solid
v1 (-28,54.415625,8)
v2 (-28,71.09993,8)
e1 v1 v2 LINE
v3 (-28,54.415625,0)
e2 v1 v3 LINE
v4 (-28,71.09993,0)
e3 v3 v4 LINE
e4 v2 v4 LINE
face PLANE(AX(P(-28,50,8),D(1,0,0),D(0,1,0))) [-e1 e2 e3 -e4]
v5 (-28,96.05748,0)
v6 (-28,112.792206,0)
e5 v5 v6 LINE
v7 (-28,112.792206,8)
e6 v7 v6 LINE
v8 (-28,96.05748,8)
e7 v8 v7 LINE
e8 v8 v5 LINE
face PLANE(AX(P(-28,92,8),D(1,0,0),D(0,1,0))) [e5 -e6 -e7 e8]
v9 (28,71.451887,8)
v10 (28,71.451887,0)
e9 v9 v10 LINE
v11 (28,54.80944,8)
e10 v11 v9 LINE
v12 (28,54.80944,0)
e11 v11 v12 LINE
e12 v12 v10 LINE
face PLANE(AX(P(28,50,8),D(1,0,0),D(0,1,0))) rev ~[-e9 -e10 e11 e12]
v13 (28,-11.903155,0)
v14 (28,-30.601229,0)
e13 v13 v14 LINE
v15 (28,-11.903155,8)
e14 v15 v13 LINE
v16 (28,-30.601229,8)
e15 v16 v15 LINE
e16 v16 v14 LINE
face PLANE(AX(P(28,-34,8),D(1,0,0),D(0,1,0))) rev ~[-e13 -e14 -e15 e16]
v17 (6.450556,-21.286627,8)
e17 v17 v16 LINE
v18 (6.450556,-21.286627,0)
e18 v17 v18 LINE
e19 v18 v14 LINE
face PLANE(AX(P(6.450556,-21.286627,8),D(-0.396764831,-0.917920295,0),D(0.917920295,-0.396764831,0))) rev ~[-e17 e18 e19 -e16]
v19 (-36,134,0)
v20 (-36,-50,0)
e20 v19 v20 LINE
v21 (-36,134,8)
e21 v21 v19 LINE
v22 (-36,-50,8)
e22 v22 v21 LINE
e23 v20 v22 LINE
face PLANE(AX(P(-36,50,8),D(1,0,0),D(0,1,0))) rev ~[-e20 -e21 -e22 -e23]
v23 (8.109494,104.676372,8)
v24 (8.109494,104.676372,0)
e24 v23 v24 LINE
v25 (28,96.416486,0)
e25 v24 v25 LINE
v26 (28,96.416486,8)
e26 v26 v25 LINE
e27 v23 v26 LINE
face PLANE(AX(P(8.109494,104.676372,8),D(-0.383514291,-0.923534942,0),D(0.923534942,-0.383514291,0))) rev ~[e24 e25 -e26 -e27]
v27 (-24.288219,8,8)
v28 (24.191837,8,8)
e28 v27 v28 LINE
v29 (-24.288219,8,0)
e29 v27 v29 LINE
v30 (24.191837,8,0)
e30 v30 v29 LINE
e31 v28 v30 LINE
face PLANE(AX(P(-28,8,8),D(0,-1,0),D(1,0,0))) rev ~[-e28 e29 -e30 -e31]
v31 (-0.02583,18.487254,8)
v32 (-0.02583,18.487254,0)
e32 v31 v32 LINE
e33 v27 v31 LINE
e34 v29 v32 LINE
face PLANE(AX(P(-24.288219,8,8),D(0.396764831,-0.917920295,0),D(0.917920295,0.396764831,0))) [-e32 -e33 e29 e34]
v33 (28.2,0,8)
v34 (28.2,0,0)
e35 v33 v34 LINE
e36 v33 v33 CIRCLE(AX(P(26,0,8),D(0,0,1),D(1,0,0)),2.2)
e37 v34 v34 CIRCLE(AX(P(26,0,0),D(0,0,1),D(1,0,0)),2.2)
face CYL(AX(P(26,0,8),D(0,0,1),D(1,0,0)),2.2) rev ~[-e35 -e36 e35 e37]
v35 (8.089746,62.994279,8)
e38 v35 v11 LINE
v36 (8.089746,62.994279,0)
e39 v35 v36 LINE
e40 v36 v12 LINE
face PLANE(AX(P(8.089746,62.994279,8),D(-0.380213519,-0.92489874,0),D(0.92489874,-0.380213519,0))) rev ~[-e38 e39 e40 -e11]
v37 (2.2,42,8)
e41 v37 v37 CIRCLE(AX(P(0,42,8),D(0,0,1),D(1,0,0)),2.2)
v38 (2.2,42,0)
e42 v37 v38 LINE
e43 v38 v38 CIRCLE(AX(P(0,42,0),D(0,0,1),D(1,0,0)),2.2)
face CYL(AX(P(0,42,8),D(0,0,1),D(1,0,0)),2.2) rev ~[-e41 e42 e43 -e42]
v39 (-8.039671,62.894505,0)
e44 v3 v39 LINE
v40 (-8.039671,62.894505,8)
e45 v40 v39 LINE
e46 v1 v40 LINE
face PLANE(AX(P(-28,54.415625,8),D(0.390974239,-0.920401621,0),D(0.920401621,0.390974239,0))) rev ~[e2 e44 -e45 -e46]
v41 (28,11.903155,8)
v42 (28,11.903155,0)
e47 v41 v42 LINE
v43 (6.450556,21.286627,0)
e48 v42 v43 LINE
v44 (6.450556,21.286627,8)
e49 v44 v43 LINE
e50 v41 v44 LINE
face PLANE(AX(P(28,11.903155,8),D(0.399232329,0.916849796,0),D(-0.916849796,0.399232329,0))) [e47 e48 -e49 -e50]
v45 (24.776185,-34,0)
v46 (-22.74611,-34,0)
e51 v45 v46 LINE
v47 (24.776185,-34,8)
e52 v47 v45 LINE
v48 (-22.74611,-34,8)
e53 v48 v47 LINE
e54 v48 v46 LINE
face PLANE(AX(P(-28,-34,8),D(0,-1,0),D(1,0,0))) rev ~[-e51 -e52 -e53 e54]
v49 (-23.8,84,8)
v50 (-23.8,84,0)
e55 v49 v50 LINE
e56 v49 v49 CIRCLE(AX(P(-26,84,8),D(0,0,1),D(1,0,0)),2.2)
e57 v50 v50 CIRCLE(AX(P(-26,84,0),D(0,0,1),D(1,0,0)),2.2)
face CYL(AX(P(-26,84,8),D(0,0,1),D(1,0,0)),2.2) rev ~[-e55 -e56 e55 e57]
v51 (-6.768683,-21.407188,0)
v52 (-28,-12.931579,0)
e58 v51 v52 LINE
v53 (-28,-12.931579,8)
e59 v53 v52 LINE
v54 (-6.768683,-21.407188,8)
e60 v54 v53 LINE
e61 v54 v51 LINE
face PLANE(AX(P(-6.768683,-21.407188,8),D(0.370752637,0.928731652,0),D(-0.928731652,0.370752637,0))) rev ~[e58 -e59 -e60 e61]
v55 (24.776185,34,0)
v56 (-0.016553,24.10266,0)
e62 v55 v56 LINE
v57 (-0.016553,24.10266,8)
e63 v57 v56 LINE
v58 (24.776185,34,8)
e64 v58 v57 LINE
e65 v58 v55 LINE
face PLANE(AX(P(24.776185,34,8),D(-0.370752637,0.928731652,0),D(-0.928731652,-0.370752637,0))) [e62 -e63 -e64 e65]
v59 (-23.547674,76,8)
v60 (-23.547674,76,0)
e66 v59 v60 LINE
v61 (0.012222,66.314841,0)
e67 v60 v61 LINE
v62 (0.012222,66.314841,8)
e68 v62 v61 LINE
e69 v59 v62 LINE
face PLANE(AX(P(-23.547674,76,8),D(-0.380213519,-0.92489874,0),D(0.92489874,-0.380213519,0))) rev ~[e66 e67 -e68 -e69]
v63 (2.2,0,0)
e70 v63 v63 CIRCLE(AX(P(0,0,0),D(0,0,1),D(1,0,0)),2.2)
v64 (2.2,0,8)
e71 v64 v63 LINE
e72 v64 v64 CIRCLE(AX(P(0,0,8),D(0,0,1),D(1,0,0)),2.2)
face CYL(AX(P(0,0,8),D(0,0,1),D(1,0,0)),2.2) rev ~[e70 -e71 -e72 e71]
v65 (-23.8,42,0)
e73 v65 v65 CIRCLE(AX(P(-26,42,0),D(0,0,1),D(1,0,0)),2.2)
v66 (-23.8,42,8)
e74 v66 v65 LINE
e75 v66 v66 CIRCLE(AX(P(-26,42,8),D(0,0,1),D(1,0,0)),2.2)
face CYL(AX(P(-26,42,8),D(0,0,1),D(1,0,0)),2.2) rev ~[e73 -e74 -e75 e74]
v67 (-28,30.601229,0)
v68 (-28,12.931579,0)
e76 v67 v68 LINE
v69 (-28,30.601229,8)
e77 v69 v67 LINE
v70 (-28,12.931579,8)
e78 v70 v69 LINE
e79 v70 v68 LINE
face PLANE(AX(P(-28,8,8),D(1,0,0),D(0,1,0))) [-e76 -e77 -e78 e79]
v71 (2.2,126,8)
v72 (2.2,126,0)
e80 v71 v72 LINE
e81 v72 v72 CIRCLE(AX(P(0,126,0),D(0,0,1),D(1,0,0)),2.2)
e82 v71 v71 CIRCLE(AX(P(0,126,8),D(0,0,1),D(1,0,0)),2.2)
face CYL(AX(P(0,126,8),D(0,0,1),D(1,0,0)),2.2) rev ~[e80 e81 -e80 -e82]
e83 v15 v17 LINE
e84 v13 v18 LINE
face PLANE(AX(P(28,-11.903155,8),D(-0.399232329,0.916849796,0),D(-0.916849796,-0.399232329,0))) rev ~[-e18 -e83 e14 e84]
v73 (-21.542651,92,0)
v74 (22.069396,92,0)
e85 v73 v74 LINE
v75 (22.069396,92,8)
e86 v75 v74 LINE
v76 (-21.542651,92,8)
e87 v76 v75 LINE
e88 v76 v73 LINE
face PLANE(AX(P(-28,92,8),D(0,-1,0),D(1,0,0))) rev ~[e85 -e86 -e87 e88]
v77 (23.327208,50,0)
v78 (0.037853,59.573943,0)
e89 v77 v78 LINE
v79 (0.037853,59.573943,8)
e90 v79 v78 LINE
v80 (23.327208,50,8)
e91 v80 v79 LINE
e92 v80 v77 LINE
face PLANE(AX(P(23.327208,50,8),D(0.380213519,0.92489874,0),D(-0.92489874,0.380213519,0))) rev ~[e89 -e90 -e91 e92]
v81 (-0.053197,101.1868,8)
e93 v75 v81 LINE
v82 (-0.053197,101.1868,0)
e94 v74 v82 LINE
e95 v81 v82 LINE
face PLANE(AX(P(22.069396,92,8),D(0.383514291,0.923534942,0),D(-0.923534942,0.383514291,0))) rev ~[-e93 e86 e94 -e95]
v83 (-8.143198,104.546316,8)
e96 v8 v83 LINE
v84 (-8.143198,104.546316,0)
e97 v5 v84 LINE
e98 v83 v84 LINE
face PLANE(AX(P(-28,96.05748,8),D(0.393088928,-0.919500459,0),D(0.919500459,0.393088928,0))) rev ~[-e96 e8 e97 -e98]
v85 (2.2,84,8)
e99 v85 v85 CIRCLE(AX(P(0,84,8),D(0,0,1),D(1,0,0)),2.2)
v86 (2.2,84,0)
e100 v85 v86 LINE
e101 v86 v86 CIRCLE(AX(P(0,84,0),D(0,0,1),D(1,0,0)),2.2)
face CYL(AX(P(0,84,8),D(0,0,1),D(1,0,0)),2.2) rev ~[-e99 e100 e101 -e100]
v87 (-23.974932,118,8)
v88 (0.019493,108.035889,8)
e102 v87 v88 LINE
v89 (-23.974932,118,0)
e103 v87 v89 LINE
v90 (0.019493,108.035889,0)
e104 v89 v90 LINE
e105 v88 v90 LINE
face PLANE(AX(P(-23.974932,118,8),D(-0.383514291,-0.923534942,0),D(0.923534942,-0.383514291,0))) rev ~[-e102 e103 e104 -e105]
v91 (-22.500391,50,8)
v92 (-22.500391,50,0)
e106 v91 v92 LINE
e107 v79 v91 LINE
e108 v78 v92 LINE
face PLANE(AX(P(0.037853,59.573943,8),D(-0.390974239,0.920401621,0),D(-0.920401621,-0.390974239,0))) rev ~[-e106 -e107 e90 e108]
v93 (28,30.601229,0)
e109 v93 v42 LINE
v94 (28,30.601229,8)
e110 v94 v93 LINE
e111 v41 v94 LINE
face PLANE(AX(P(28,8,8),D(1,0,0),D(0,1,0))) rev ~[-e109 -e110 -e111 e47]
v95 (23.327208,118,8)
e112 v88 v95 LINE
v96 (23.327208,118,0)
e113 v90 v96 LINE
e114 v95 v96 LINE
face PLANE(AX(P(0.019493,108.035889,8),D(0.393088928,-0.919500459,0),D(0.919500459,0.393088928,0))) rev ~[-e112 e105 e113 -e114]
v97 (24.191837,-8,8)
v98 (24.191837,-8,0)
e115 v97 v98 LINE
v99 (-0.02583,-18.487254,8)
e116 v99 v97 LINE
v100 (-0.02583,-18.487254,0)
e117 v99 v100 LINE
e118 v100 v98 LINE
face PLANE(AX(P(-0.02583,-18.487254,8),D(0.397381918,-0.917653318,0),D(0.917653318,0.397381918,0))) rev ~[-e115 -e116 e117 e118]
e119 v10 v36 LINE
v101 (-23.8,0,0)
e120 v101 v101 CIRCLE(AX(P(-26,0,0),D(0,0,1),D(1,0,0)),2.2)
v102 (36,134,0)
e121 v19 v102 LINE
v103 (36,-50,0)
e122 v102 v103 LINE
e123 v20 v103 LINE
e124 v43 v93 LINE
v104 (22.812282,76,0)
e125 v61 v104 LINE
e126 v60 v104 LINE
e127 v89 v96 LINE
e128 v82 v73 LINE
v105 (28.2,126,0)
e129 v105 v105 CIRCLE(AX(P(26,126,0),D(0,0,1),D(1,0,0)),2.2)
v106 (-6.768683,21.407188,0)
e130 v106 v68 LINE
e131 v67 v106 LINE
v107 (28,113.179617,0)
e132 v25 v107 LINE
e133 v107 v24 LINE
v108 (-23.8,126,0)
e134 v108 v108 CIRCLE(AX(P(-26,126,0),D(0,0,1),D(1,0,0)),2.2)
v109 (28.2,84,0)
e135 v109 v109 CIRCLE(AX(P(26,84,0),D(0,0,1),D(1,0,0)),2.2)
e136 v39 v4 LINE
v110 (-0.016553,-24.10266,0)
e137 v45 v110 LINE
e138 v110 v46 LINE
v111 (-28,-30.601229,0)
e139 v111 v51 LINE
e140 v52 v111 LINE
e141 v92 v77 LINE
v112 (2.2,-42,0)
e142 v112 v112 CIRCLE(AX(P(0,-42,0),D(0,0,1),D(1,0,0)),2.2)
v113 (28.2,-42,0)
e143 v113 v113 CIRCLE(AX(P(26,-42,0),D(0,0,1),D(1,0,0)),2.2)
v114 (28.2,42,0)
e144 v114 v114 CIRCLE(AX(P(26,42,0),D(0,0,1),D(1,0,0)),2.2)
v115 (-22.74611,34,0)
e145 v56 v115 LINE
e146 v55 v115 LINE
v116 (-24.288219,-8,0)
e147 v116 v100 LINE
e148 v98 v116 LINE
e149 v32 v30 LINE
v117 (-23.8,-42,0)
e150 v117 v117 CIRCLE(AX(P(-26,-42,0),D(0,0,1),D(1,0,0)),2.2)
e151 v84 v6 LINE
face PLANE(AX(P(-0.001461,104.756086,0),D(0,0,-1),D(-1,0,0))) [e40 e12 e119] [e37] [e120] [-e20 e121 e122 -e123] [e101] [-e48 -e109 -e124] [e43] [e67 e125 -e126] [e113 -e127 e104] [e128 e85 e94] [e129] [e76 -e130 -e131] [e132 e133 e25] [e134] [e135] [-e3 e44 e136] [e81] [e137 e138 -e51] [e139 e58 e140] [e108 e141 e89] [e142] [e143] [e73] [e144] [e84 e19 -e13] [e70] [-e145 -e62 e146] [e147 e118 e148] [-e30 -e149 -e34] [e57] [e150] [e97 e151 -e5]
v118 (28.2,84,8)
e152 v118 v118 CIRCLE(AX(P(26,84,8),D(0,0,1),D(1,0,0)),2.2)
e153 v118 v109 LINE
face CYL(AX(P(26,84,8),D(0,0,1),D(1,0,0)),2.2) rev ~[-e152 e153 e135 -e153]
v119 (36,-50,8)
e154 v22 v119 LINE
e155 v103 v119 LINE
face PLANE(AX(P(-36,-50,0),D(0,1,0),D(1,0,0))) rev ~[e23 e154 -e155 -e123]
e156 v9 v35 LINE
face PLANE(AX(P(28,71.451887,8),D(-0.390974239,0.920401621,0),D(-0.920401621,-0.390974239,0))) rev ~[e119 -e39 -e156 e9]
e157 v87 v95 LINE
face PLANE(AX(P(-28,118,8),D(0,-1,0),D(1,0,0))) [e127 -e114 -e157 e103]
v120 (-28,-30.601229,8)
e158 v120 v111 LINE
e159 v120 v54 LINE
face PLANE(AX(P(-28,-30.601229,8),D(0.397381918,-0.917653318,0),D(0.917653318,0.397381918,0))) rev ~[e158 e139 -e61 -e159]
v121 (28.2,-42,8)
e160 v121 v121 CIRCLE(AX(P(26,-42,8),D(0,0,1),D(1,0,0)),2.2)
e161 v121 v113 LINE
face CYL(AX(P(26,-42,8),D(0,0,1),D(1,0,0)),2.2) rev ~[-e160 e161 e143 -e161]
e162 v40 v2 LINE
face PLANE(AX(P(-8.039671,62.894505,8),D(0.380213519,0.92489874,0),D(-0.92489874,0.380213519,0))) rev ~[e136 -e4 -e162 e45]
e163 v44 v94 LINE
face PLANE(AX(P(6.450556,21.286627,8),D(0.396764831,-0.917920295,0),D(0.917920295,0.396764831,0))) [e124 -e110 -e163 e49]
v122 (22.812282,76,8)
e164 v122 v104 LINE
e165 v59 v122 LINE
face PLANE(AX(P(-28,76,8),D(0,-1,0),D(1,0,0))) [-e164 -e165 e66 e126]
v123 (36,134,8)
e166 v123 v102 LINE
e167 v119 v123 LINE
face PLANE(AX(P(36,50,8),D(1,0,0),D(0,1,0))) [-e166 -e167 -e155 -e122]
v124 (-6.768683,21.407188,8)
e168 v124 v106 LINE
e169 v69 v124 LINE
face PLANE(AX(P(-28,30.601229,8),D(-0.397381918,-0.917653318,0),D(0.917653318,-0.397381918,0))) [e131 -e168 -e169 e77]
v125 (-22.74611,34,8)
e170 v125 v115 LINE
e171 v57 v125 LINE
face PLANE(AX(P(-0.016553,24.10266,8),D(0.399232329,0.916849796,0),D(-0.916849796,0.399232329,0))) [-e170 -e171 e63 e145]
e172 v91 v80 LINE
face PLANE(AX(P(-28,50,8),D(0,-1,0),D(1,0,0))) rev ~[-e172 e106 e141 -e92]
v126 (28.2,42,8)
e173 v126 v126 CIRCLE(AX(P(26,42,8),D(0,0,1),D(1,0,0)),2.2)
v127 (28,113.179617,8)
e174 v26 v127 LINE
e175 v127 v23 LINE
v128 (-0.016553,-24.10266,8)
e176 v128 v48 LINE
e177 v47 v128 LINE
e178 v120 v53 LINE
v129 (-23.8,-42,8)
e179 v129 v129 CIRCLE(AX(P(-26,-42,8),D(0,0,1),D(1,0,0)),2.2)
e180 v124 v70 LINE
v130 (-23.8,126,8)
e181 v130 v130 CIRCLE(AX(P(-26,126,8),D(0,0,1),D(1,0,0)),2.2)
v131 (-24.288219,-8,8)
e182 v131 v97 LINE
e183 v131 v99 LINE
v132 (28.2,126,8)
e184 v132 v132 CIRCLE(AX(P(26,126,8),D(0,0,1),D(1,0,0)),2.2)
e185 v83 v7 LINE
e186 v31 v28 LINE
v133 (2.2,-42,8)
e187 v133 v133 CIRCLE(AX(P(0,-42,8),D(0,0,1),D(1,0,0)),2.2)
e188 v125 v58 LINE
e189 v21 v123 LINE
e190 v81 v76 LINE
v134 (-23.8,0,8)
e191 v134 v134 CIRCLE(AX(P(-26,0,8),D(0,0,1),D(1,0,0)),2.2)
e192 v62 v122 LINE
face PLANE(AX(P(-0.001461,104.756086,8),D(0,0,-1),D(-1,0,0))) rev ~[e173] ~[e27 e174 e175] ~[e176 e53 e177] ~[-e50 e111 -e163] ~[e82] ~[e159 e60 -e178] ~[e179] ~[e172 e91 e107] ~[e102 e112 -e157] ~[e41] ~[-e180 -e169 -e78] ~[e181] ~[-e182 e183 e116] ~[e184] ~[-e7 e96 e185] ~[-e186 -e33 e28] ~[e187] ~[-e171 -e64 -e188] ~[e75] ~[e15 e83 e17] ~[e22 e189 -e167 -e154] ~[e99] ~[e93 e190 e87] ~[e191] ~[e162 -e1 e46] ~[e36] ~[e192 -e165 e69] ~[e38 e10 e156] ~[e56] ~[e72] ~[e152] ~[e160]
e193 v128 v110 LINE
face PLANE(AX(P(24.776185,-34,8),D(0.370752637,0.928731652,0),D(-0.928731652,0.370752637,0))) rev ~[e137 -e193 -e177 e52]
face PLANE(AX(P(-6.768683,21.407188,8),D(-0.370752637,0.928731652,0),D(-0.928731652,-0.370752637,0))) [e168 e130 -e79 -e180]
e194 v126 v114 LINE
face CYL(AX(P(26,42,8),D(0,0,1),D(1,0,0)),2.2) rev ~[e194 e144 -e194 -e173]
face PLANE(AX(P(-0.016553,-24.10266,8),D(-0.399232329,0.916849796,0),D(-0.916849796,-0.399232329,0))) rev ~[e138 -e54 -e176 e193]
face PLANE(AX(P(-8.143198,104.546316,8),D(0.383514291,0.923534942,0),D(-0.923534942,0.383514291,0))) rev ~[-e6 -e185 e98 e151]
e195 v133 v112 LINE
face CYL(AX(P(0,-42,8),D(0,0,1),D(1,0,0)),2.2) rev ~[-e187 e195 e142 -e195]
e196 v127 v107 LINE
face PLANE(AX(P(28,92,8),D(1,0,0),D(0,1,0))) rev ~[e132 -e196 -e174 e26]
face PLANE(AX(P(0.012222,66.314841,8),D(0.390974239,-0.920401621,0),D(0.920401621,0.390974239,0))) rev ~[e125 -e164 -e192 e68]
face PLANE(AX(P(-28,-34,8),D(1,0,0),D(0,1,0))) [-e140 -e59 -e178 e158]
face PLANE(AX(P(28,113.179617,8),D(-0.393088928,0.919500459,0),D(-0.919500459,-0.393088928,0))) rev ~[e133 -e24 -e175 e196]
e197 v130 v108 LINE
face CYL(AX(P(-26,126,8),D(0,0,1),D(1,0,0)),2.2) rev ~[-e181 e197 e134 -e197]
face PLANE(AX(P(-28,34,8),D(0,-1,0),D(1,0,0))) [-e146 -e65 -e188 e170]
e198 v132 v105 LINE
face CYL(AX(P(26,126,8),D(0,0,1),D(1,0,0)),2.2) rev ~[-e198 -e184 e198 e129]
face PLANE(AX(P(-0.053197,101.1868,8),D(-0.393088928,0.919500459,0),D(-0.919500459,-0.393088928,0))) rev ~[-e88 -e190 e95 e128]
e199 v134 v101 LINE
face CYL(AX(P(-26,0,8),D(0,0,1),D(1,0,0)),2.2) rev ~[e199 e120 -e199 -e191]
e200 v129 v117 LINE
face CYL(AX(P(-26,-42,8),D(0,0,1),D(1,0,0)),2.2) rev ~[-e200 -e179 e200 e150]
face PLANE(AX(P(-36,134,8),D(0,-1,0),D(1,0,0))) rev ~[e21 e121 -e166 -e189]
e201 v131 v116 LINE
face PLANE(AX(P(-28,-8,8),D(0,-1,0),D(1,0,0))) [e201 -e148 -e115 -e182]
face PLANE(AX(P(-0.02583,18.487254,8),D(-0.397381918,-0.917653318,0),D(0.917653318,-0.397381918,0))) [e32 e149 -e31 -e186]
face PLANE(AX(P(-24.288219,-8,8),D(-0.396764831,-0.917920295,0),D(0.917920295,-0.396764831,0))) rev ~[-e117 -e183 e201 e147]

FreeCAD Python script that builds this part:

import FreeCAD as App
import Part
import Sketcher
from FreeCAD import Vector
Q = App.Units.Quantity


def add_polygon(sketch, points):
    """Adds a closed chain of lines whose ends are joined by coincident constraints."""
    first, n = sketch.GeometryCount, len(points)
    for a, b in zip(points, points[1:] + points[:1]):
        sketch.addGeometry(Part.LineSegment(App.Vector(*a, 0), App.Vector(*b, 0)), False)
    for i in range(n):
        sketch.addConstraint(Sketcher.Constraint("Coincident", first + i, 2, first + (i + 1) % n, 1))

doc = App.newDocument("Part")
params = doc.addObject("Spreadsheet::Sheet", "Params")
for row, (alias, value) in enumerate([
    ("sketch1_width", "72 mm"),
    ("sketch1_height", "100 mm"),
    ("pad1_length", "8 mm"),
    ("sketch2_diameter", "4.4 mm"),
    ("sketch3_diameter", "4.4 mm"),
    ("sketch4_diameter", "4.4 mm"),
    ("sketch5_diameter", "4.4 mm"),
    ("sketch6_diameter", "4.4 mm"),
    ("sketch7_diameter", "4.4 mm"),
    ("sketch8_diameter", "4.4 mm"),
    ("sketch9_diameter", "4.4 mm"),
    ("sketch10_diameter", "4.4 mm"),
    ("sketch11_width", "56 mm"),
    ("sketch11_height", "26 mm"),
    ("sketch12_width", "56 mm"),
    ("sketch12_height", "26 mm"),
    ("pad2_length", "8 mm"),
    ("sketch14_width", "72 mm"),
    ("sketch14_height", "84 mm"),
    ("pad3_length", "8 mm"),
    ("sketch15_diameter", "4.4 mm"),
    ("sketch15_width", "56 mm"),
    ("sketch15_height", "26 mm"),
    ("pocket12_length", "8 mm"),
    ("pad4_length", "8 mm"),
], start=1):
    params.set(f"A{row}", alias)
    params.set(f"B{row}", "=" + value)
    params.setAlias(f"B{row}", alias)

body = doc.addObject("PartDesign::Body", "Body")

sketch1 = body.newObject("Sketcher::SketchObject", "Sketch")
sketch1.AttachmentSupport = (doc.getObject("XY_Plane"), [""])
sketch1.MapMode = "FlatFace"
add_polygon(sketch1, [(-36, 50), (-36, -50), (36, -50), (36, 50)])
sketch1.addConstraint([
    Sketcher.Constraint("Vertical", 0),
    Sketcher.Constraint("Horizontal", 1),
    Sketcher.Constraint("Vertical", 2),
    Sketcher.Constraint("Horizontal", 3),
    Sketcher.Constraint("Symmetric", 0, 2, 2, 2, -1, 1),
    Sketcher.Constraint("DistanceX", 1, 1, 1, 2, Q("72 mm")),
    Sketcher.Constraint("DistanceY", 0, 2, 0, 1, Q("100 mm")),
])
sketch1.setExpression("Constraints[9]", "Params.sketch1_width")
sketch1.setExpression("Constraints[10]", "Params.sketch1_height")
pad1 = body.newObject("PartDesign::Pad", "Pad")
pad1.Profile = sketch1
pad1.setExpression("Length", "Params.pad1_length")

sketch2 = body.newObject("Sketcher::SketchObject", "Sketch001")
sketch2.AttachmentSupport = (doc.getObject("XY_Plane"), [""])
sketch2.MapMode = "FlatFace"
sketch2.AttachmentOffset = App.Placement(Vector(0, 0, 8), App.Rotation())
sketch2.addGeometry(Part.Circle(Vector(-26, -42, 0), Vector(0, 0, 1), 2.2), False)
sketch2.addConstraint([
    Sketcher.Constraint("Diameter", 0, Q("4.4 mm")),
    Sketcher.Constraint("DistanceX", 0, 3, -1, 1, Q("26 mm")),
    Sketcher.Constraint("DistanceY", 0, 3, -1, 1, Q("42 mm")),
])
sketch2.setExpression("Constraints[0]", "Params.sketch2_diameter")
pocket1 = body.newObject("PartDesign::Pocket", "Pocket")
pocket1.Profile = sketch2
pocket1.Type = "UpToFirst"

sketch3 = body.newObject("Sketcher::SketchObject", "Sketch002")
sketch3.AttachmentSupport = (doc.getObject("XY_Plane"), [""])
sketch3.MapMode = "FlatFace"
sketch3.AttachmentOffset = App.Placement(Vector(0, 0, 8), App.Rotation())
sketch3.addGeometry(Part.Circle(Vector(0, -42, 0), Vector(0, 0, 1), 2.2), False)
sketch3.addConstraint([
    Sketcher.Constraint("PointOnObject", 0, 3, -2),
    Sketcher.Constraint("Diameter", 0, Q("4.4 mm")),
    Sketcher.Constraint("DistanceY", 0, 3, -1, 1, Q("42 mm")),
])
sketch3.setExpression("Constraints[1]", "Params.sketch3_diameter")
pocket2 = body.newObject("PartDesign::Pocket", "Pocket001")
pocket2.Profile = sketch3
pocket2.Type = "UpToFirst"

sketch4 = body.newObject("Sketcher::SketchObject", "Sketch003")
sketch4.AttachmentSupport = (doc.getObject("XY_Plane"), [""])
sketch4.MapMode = "FlatFace"
sketch4.AttachmentOffset = App.Placement(Vector(0, 0, 8), App.Rotation())
sketch4.addGeometry(Part.Circle(Vector(26, -42, 0), Vector(0, 0, 1), 2.2), False)
sketch4.addConstraint([
    Sketcher.Constraint("Diameter", 0, Q("4.4 mm")),
    Sketcher.Constraint("DistanceX", -1, 1, 0, 3, Q("26 mm")),
    Sketcher.Constraint("DistanceY", 0, 3, -1, 1, Q("42 mm")),
])
sketch4.setExpression("Constraints[0]", "Params.sketch4_diameter")
pocket3 = body.newObject("PartDesign::Pocket", "Pocket002")
pocket3.Profile = sketch4
pocket3.Type = "UpToFirst"

sketch5 = body.newObject("Sketcher::SketchObject", "Sketch004")
sketch5.AttachmentSupport = (doc.getObject("XY_Plane"), [""])
sketch5.MapMode = "FlatFace"
sketch5.AttachmentOffset = App.Placement(Vector(0, 0, 8), App.Rotation())
sketch5.addGeometry(Part.Circle(Vector(26, 42, 0), Vector(0, 0, 1), 2.2), False)
sketch5.addConstraint([
    Sketcher.Constraint("Diameter", 0, Q("4.4 mm")),
    Sketcher.Constraint("DistanceX", -1, 1, 0, 3, Q("26 mm")),
    Sketcher.Constraint("DistanceY", -1, 1, 0, 3, Q("42 mm")),
])
sketch5.setExpression("Constraints[0]", "Params.sketch5_diameter")
pocket4 = body.newObject("PartDesign::Pocket", "Pocket003")
pocket4.Profile = sketch5
pocket4.Type = "UpToFirst"

sketch6 = body.newObject("Sketcher::SketchObject", "Sketch005")
sketch6.AttachmentSupport = (doc.getObject("XY_Plane"), [""])
sketch6.MapMode = "FlatFace"
sketch6.AttachmentOffset = App.Placement(Vector(0, 0, 8), App.Rotation())
sketch6.addGeometry(Part.Circle(Vector(0, 42, 0), Vector(0, 0, 1), 2.2), False)
sketch6.addConstraint([
    Sketcher.Constraint("PointOnObject", 0, 3, -2),
    Sketcher.Constraint("Diameter", 0, Q("4.4 mm")),
    Sketcher.Constraint("DistanceY", -1, 1, 0, 3, Q("42 mm")),
])
sketch6.setExpression("Constraints[1]", "Params.sketch6_diameter")
pocket5 = body.newObject("PartDesign::Pocket", "Pocket004")
pocket5.Profile = sketch6
pocket5.Type = "UpToFirst"

sketch7 = body.newObject("Sketcher::SketchObject", "Sketch006")
sketch7.AttachmentSupport = (doc.getObject("XY_Plane"), [""])
sketch7.MapMode = "FlatFace"
sketch7.AttachmentOffset = App.Placement(Vector(0, 0, 8), App.Rotation())
sketch7.addGeometry(Part.Circle(Vector(-26, 42, 0), Vector(0, 0, 1), 2.2), False)
sketch7.addConstraint([
    Sketcher.Constraint("Diameter", 0, Q("4.4 mm")),
    Sketcher.Constraint("DistanceX", 0, 3, -1, 1, Q("26 mm")),
    Sketcher.Constraint("DistanceY", -1, 1, 0, 3, Q("42 mm")),
])
sketch7.setExpression("Constraints[0]", "Params.sketch7_diameter")
pocket6 = body.newObject("PartDesign::Pocket", "Pocket005")
pocket6.Profile = sketch7
pocket6.Type = "UpToFirst"

sketch8 = body.newObject("Sketcher::SketchObject", "Sketch007")
sketch8.AttachmentSupport = (doc.getObject("XY_Plane"), [""])
sketch8.MapMode = "FlatFace"
sketch8.AttachmentOffset = App.Placement(Vector(0, 0, 8), App.Rotation())
sketch8.addGeometry(Part.Circle(Vector(-26, 0, 0), Vector(0, 0, 1), 2.2), False)
sketch8.addConstraint([
    Sketcher.Constraint("PointOnObject", 0, 3, -1),
    Sketcher.Constraint("Diameter", 0, Q("4.4 mm")),
    Sketcher.Constraint("DistanceX", 0, 3, -1, 1, Q("26 mm")),
])
sketch8.setExpression("Constraints[1]", "Params.sketch8_diameter")
pocket7 = body.newObject("PartDesign::Pocket", "Pocket006")
pocket7.Profile = sketch8
pocket7.Type = "UpToFirst"

sketch9 = body.newObject("Sketcher::SketchObject", "Sketch008")
sketch9.AttachmentSupport = (doc.getObject("XY_Plane"), [""])
sketch9.MapMode = "FlatFace"
sketch9.AttachmentOffset = App.Placement(Vector(0, 0, 8), App.Rotation())
sketch9.addGeometry(Part.Circle(Vector(0, 0, 0), Vector(0, 0, 1), 2.2), False)
sketch9.addConstraint([
    Sketcher.Constraint("Coincident", 0, 3, -1, 1),
    Sketcher.Constraint("Diameter", 0, Q("4.4 mm")),
])
sketch9.setExpression("Constraints[1]", "Params.sketch9_diameter")
pocket8 = body.newObject("PartDesign::Pocket", "Pocket007")
pocket8.Profile = sketch9
pocket8.Type = "UpToFirst"

sketch10 = body.newObject("Sketcher::SketchObject", "Sketch009")
sketch10.AttachmentSupport = (doc.getObject("XY_Plane"), [""])
sketch10.MapMode = "FlatFace"
sketch10.AttachmentOffset = App.Placement(Vector(0, 0, 8), App.Rotation())
sketch10.addGeometry(Part.Circle(Vector(26, 0, 0), Vector(0, 0, 1), 2.2), False)
sketch10.addConstraint([
    Sketcher.Constraint("PointOnObject", 0, 3, -1),
    Sketcher.Constraint("Diameter", 0, Q("4.4 mm")),
    Sketcher.Constraint("DistanceX", -1, 1, 0, 3, Q("26 mm")),
])
sketch10.setExpression("Constraints[1]", "Params.sketch10_diameter")
pocket9 = body.newObject("PartDesign::Pocket", "Pocket008")
pocket9.Profile = sketch10
pocket9.Type = "UpToFirst"

sketch11 = body.newObject("Sketcher::SketchObject", "Sketch010")
sketch11.AttachmentSupport = (doc.getObject("XY_Plane"), [""])
sketch11.MapMode = "FlatFace"
sketch11.AttachmentOffset = App.Placement(Vector(0, 0, 8), App.Rotation())
add_polygon(sketch11, [(-28, 34), (-28, 8), (28, 8), (28, 34)])
sketch11.addConstraint([
    Sketcher.Constraint("Vertical", 0),
    Sketcher.Constraint("Horizontal", 1),
    Sketcher.Constraint("Vertical", 2),
    Sketcher.Constraint("Horizontal", 3),
    Sketcher.Constraint("DistanceX", 1, 1, 1, 2, Q("56 mm")),
    Sketcher.Constraint("DistanceY", 0, 2, 0, 1, Q("26 mm")),
    Sketcher.Constraint("DistanceX", 0, 2, -1, 1, Q("28 mm")),
    Sketcher.Constraint("DistanceY", -1, 1, 0, 2, Q("8 mm")),
])
sketch11.setExpression("Constraints[8]", "Params.sketch11_width")
sketch11.setExpression("Constraints[9]", "Params.sketch11_height")
pocket10 = body.newObject("PartDesign::Pocket", "Pocket009")
pocket10.Profile = sketch11
pocket10.Type = "UpToFirst"

sketch12 = body.newObject("Sketcher::SketchObject", "Sketch011")
sketch12.AttachmentSupport = (doc.getObject("XY_Plane"), [""])
sketch12.MapMode = "FlatFace"
sketch12.AttachmentOffset = App.Placement(Vector(0, 0, 8), App.Rotation())
add_polygon(sketch12, [(-28, -8), (-28, -34), (28, -34), (28, -8)])
sketch12.addConstraint([
    Sketcher.Constraint("Vertical", 0),
    Sketcher.Constraint("Horizontal", 1),
    Sketcher.Constraint("Vertical", 2),
    Sketcher.Constraint("Horizontal", 3),
    Sketcher.Constraint("DistanceX", 1, 1, 1, 2, Q("56 mm")),
    Sketcher.Constraint("DistanceY", 0, 2, 0, 1, Q("26 mm")),
    Sketcher.Constraint("DistanceX", 0, 2, -1, 1, Q("28 mm")),
    Sketcher.Constraint("DistanceY", 0, 2, -1, 1, Q("34 mm")),
])
sketch12.setExpression("Constraints[8]", "Params.sketch12_width")
sketch12.setExpression("Constraints[9]", "Params.sketch12_height")
pocket11 = body.newObject("PartDesign::Pocket", "Pocket010")
pocket11.Profile = sketch12
pocket11.Type = "UpToFirst"

sketch13 = body.newObject("Sketcher::SketchObject", "Sketch012")
sketch13.AttachmentSupport = (doc.getObject("XY_Plane"), [""])
sketch13.MapMode = "FlatFace"
sketch13.AttachmentOffset = App.Placement(Vector(0, 0, 8), App.Rotation())
add_polygon(sketch13, [(-28, 30.6), (-6.8, 21.4), (-28, 12.9), (-28, 8), (-24.3, 8), (0, 18.5), (24.2, 8), (28, 8), (28, 11.9), (6.5, 21.3), (28, 30.6), (28, 34), (24.8, 34), (0, 24.1), (-22.7, 34), (-28, 34)])
add_polygon(sketch13, [(-24.3, -8), (-28, -8), (-28, -12.9), (-6.8, -21.4), (-28, -30.6), (-28, -34), (-22.7, -34), (0, -24.1), (24.8, -34), (28, -34), (28, -30.6), (6.5, -21.3), (28, -11.9), (28, -8), (24.2, -8), (0, -18.5)])
sketch13.addConstraint([
    Sketcher.Constraint("Vertical", 2),
    Sketcher.Constraint("Horizontal", 3),
    Sketcher.Constraint("Horizontal", 6),
    Sketcher.Constraint("Vertical", 7),
    Sketcher.Constraint("Vertical", 10),
    Sketcher.Constraint("Horizontal", 11),
    Sketcher.Constraint("Horizontal", 14),
    Sketcher.Constraint("Vertical", 15),
    Sketcher.Constraint("Horizontal", 16),
    Sketcher.Constraint("Vertical", 17),
    Sketcher.Constraint("Vertical", 20),
    Sketcher.Constraint("Horizontal", 21),
    Sketcher.Constraint("Horizontal", 24),
    Sketcher.Constraint("Vertical", 25),
    Sketcher.Constraint("Vertical", 28),
    Sketcher.Constraint("Horizontal", 29),
    Sketcher.Constraint("Symmetric", 6, 2, 16, 2, -1, 1),
    Sketcher.Constraint("Symmetric", 9, 2, 19, 2, -1, 1),
    Sketcher.Constraint("Symmetric", 14, 2, 24, 2, -1, 1),
    Sketcher.Constraint("Symmetric", 2, 2, 28, 2, -1, 1),
    Sketcher.Constraint("Symmetric", 2, 2, 6, 2, -2),
    Sketcher.Constraint("Symmetric", 10, 2, 14, 2, -2),
    Sketcher.Constraint("Symmetric", 0, 2, 18, 2, -1),
    Sketcher.Constraint("Symmetric", 13, 2, 21, 2, -1),
    Sketcher.Constraint("Symmetric", 12, 2, 22, 2, -1),
    Sketcher.Constraint("Symmetric", 8, 2, 26, 2, -1),
    Sketcher.Constraint("Symmetric", 4, 2, 30, 2, -1),
    Sketcher.Constraint("Parallel", 0, 5),
    Sketcher.Constraint("Parallel", 4, 9),
    Sketcher.Constraint("Parallel", 1, 12),
    Sketcher.Constraint("Parallel", 8, 13),
    Sketcher.Constraint("Parallel", 18, 23),
    Sketcher.Constraint("Parallel", 22, 27),
    Sketcher.Constraint("Parallel", 19, 30),
    Sketcher.Constraint("Parallel", 26, 31),
    Sketcher.Constraint("Horizontal", 9, 2, 15, 2),
    Sketcher.Constraint("Horizontal", 19, 2, 25, 2),
    Sketcher.Constraint("Vertical", 7, 2, 9, 2),
    Sketcher.Constraint("Vertical", 11, 2, 23, 2),
    Sketcher.Constraint("DistanceX", 1, 2, -1, 1, Q("28 mm")),
    Sketcher.Constraint("DistanceY", -1, 1, 2, 2, Q("8 mm")),
    Sketcher.Constraint("DistanceY", -1, 1, 10, 2, Q("34 mm")),
    Sketcher.Constraint("DistanceX", 3, 1, 3, 2, Q("3.711781 mm")),
    Sketcher.Constraint("DistanceX", 14, 2, 14, 1, Q("5.25389 mm")),
    Sketcher.Constraint("DistanceY", 2, 2, 2, 1, Q("4.931579 mm")),
    Sketcher.Constraint("DistanceY", 10, 1, 10, 2, Q("3.398771 mm")),
    Sketcher.Constraint("DistanceY", 7, 2, 4, 2, Q("6.584098 mm")),
    Sketcher.Constraint("DistanceY", 8, 2, 9, 2, Q("9.314601 mm")),
    Sketcher.Constraint("Distance", 1, Q("22.860551 mm")),
    Sketcher.Constraint("Distance", 8, Q("23.503789 mm")),
    Sketcher.Constraint("Distance", 9, Q("23.476378 mm")),
    Sketcher.Constraint("Distance", 13, Q("24.790928 mm")),
    Sketcher.Constraint("DistanceX", 6, 1, 6, 2, Q("3.808163 mm")),
])
pad2 = body.newObject("PartDesign::Pad", "Pad001")
pad2.Profile = sketch13
pad2.setExpression("Length", "Params.pad2_length")
pad2.Reversed = True

sketch14 = body.newObject("Sketcher::SketchObject", "Sketch013")
sketch14.AttachmentSupport = (doc.getObject("XY_Plane"), [""])
sketch14.MapMode = "FlatFace"
sketch14.AttachmentOffset = App.Placement(Vector(0, 0, 8), App.Rotation())
add_polygon(sketch14, [(-36, 134), (-36, 50), (36, 50), (36, 134)])
sketch14.addConstraint([
    Sketcher.Constraint("Vertical", 0),
    Sketcher.Constraint("Horizontal", 1),
    Sketcher.Constraint("Vertical", 2),
    Sketcher.Constraint("Horizontal", 3),
    Sketcher.Constraint("DistanceX", 1, 1, 1, 2, Q("72 mm")),
    Sketcher.Constraint("DistanceY", 0, 2, 0, 1, Q("84 mm")),
    Sketcher.Constraint("DistanceX", 0, 2, -1, 1, Q("36 mm")),
    Sketcher.Constraint("DistanceY", -1, 1, 0, 2, Q("50 mm")),
])
sketch14.setExpression("Constraints[8]", "Params.sketch14_width")
sketch14.setExpression("Constraints[9]", "Params.sketch14_height")
pad3 = body.newObject("PartDesign::Pad", "Pad002")
pad3.Profile = sketch14
pad3.setExpression("Length", "Params.pad3_length")
pad3.Reversed = True

sketch15 = body.newObject("Sketcher::SketchObject", "Sketch014")
sketch15.AttachmentSupport = (doc.getObject("XY_Plane"), [""])
sketch15.MapMode = "FlatFace"
sketch15.AttachmentOffset = App.Placement(Vector(0, 0, 8), App.Rotation())
sketch15.addGeometry(Part.Circle(Vector(0, 84, 0), Vector(0, 0, 1), 2.2), False)
sketch15.addGeometry(Part.Circle(Vector(0, 126, 0), Vector(0, 0, 1), 2.2), False)
sketch15.addGeometry(Part.Circle(Vector(26, 126, 0), Vector(0, 0, 1), 2.2), False)
sketch15.addGeometry(Part.Circle(Vector(-26, 126, 0), Vector(0, 0, 1), 2.2), False)
sketch15.addGeometry(Part.Circle(Vector(-26, 84, 0), Vector(0, 0, 1), 2.2), False)
sketch15.addGeometry(Part.Circle(Vector(26, 84, 0), Vector(0, 0, 1), 2.2), False)
add_polygon(sketch15, [(-28, 118), (-28, 92), (28, 92), (28, 118)])
add_polygon(sketch15, [(-28, 76), (-28, 50), (28, 50), (28, 76)])
sketch15.addConstraint([
    Sketcher.Constraint("Vertical", 6),
    Sketcher.Constraint("Horizontal", 7),
    Sketcher.Constraint("Vertical", 8),
    Sketcher.Constraint("Horizontal", 9),
    Sketcher.Constraint("Vertical", 10),
    Sketcher.Constraint("Horizontal", 11),
    Sketcher.Constraint("Vertical", 12),
    Sketcher.Constraint("Horizontal", 13),
    Sketcher.Constraint("Equal", 0, 1),
    Sketcher.Constraint("Equal", 1, 2),
    Sketcher.Constraint("Equal", 2, 3),
    Sketcher.Constraint("Equal", 3, 4),
    Sketcher.Constraint("Equal", 4, 5),
    Sketcher.Constraint("Symmetric", 2, 3, 3, 3, -2),
    Sketcher.Constraint("Symmetric", 4, 3, 5, 3, -2),
    Sketcher.Constraint("PointOnObject", 0, 3, -2),
    Sketcher.Constraint("PointOnObject", 1, 3, -2),
    Sketcher.Constraint("Horizontal", 1, 3, 2, 3),
    Sketcher.Constraint("Horizontal", 0, 3, 4, 3),
    Sketcher.Constraint("Vertical", 3, 3, 4, 3),
    Sketcher.Constraint("Vertical", 9, 2, 10, 2),
    Sketcher.Constraint("Vertical", 8, 2, 11, 2),
    Sketcher.Constraint("Equal", 8, 10),
    Sketcher.Constraint("Diameter", 0, Q("4.4 mm")),
    Sketcher.Constraint("DistanceX", 7, 1, 7, 2, Q("56 mm")),
    Sketcher.Constraint("DistanceY", 6, 2, 6, 1, Q("26 mm")),
    Sketcher.Constraint("DistanceY", -1, 1, 0, 3, Q("84 mm")),
    Sketcher.Constraint("DistanceY", -1, 1, 1, 3, Q("126 mm")),
    Sketcher.Constraint("DistanceX", -1, 1, 2, 3, Q("26 mm")),
    Sketcher.Constraint("DistanceX", 6, 2, -1, 1, Q("28 mm")),
    Sketcher.Constraint("DistanceY", -1, 1, 6, 2, Q("92 mm")),
    Sketcher.Constraint("DistanceY", -1, 1, 10, 2, Q("50 mm")),
])
sketch15.setExpression("Constraints[31]", "Params.sketch15_diameter")
sketch15.setExpression("Constraints[32]", "Params.sketch15_width")
sketch15.setExpression("Constraints[33]", "Params.sketch15_height")
pocket12 = body.newObject("PartDesign::Pocket", "Pocket011")
pocket12.Profile = sketch15
pocket12.setExpression("Length", "Params.pocket12_length")

sketch16 = body.newObject("Sketcher::SketchObject", "Sketch015")
sketch16.AttachmentSupport = (doc.getObject("XY_Plane"), [""])
sketch16.MapMode = "FlatFace"
sketch16.AttachmentOffset = App.Placement(Vector(0, 0, 8), App.Rotation())
add_polygon(sketch16, [(0, 108), (-24, 118), (-28, 118), (-28, 112.8), (-8.1, 104.5), (-28, 96.1), (-28, 92), (-21.5, 92), (-0.1, 101.2), (22.1, 92), (28, 92), (28, 96.4), (8.1, 104.7), (28, 113.2), (28, 118), (23.3, 118)])
add_polygon(sketch16, [(0, 66.3), (-23.5, 76), (-28, 76), (-28, 71.1), (-8, 62.9), (-28, 54.4), (-28, 50), (-22.5, 50), (0, 59.6), (23.3, 50), (28, 50), (28, 54.8), (8.1, 63), (28, 71.5), (28, 76), (22.8, 76)])
sketch16.addConstraint([
    Sketcher.Constraint("Horizontal", 1),
    Sketcher.Constraint("Vertical", 2),
    Sketcher.Constraint("Vertical", 5),
    Sketcher.Constraint("Horizontal", 6),
    Sketcher.Constraint("Horizontal", 9),
    Sketcher.Constraint("Vertical", 10),
    Sketcher.Constraint("Vertical", 13),
    Sketcher.Constraint("Horizontal", 14),
    Sketcher.Constraint("Horizontal", 17),
    Sketcher.Constraint("Vertical", 18),
    Sketcher.Constraint("Vertical", 21),
    Sketcher.Constraint("Horizontal", 22),
    Sketcher.Constraint("Horizontal", 25),
    Sketcher.Constraint("Vertical", 26),
    Sketcher.Constraint("Vertical", 29),
    Sketcher.Constraint("Horizontal", 30),
    Sketcher.Constraint("Symmetric", 5, 2, 9, 2, -2),
    Sketcher.Constraint("Symmetric", 1, 2, 13, 2, -2),
    Sketcher.Constraint("Symmetric", 21, 2, 25, 2, -2),
    Sketcher.Constraint("Symmetric", 17, 2, 29, 2, -2),
    Sketcher.Constraint("Parallel", 0, 3),
    Sketcher.Constraint("Parallel", 4, 7),
    Sketcher.Constraint("Parallel", 3, 8),
    Sketcher.Constraint("Parallel", 8, 11),
    Sketcher.Constraint("Parallel", 7, 12),
    Sketcher.Constraint("Parallel", 12, 15),
    Sketcher.Constraint("Parallel", 16, 19),
    Sketcher.Constraint("Parallel", 20, 23),
    Sketcher.Constraint("Parallel", 19, 24),
    Sketcher.Constraint("Parallel", 24, 27),
    Sketcher.Constraint("Parallel", 23, 28),
    Sketcher.Constraint("Parallel", 28, 31),
    Sketcher.Constraint("Vertical", 2, 2, 4, 2),
    Sketcher.Constraint("Vertical", 5, 2, 17, 2),
    Sketcher.Constraint("Vertical", 18, 2, 20, 2),
    Sketcher.Constraint("Vertical", 14, 2, 24, 2),
    Sketcher.Constraint("DistanceY", -1, 1, 0, 2, Q("118 mm")),
    Sketcher.Constraint("DistanceX", 1, 2, -1, 1, Q("28 mm")),
    Sketcher.Constraint("DistanceY", -1, 1, 5, 2, Q("92 mm")),
    Sketcher.Constraint("DistanceY", -1, 1, 16, 2, Q("76 mm")),
    Sketcher.Constraint("DistanceY", -1, 1, 21, 2, Q("50 mm")),
    Sketcher.Constraint("DistanceX", 3, 2, 7, 2, Q("8.090001 mm")),
    Sketcher.Constraint("DistanceX", 15, 2, 11, 2, Q("8.090001 mm")),
    Sketcher.Constraint("Distance", 23, Q("24.487401 mm")),
    Sketcher.Constraint("DistanceX", 6, 1, 6, 2, Q("6.457349 mm")),
    Sketcher.Constraint("DistanceX", 14, 2, 14, 1, Q("4.672792 mm")),
    Sketcher.Constraint("DistanceX", 22, 1, 22, 2, Q("5.499609 mm")),
    Sketcher.Constraint("DistanceY", 5, 2, 5, 1, Q("4.05748 mm")),
    Sketcher.Constraint("DistanceY", 18, 2, 18, 1, Q("4.90007 mm")),
    Sketcher.Constraint("DistanceY", 26, 1, 26, 2, Q("4.80944 mm")),
    Sketcher.Constraint("DistanceX", 3, 2, -1, 1, Q("8.143198 mm")),
    Sketcher.Constraint("DistanceY", -1, 1, 7, 2, Q("101.1868 mm")),
    Sketcher.Constraint("DistanceX", 11, 2, 8, 2, Q("13.959901 mm")),
    Sketcher.Constraint("DistanceY", 23, 2, 31, 2, Q("6.740898 mm")),
    Sketcher.Constraint("Distance", 0, Q("25.981069 mm")),
    Sketcher.Constraint("Distance", 24, Q("25.180438 mm")),
    Sketcher.Constraint("DistanceX", 17, 2, 17, 1, Q("4.452326 mm")),
    Sketcher.Constraint("DistanceY", 10, 1, 10, 2, Q("4.416486 mm")),
    Sketcher.Constraint("DistanceY", 21, 2, 21, 1, Q("4.415625 mm")),
    Sketcher.Constraint("DistanceY", 29, 1, 29, 2, Q("4.548113 mm")),
])
pad4 = body.newObject("PartDesign::Pad", "Pad003")
pad4.Profile = sketch16
pad4.setExpression("Length", "Params.pad4_length")
pad4.Reversed = True

doc.recompute()
